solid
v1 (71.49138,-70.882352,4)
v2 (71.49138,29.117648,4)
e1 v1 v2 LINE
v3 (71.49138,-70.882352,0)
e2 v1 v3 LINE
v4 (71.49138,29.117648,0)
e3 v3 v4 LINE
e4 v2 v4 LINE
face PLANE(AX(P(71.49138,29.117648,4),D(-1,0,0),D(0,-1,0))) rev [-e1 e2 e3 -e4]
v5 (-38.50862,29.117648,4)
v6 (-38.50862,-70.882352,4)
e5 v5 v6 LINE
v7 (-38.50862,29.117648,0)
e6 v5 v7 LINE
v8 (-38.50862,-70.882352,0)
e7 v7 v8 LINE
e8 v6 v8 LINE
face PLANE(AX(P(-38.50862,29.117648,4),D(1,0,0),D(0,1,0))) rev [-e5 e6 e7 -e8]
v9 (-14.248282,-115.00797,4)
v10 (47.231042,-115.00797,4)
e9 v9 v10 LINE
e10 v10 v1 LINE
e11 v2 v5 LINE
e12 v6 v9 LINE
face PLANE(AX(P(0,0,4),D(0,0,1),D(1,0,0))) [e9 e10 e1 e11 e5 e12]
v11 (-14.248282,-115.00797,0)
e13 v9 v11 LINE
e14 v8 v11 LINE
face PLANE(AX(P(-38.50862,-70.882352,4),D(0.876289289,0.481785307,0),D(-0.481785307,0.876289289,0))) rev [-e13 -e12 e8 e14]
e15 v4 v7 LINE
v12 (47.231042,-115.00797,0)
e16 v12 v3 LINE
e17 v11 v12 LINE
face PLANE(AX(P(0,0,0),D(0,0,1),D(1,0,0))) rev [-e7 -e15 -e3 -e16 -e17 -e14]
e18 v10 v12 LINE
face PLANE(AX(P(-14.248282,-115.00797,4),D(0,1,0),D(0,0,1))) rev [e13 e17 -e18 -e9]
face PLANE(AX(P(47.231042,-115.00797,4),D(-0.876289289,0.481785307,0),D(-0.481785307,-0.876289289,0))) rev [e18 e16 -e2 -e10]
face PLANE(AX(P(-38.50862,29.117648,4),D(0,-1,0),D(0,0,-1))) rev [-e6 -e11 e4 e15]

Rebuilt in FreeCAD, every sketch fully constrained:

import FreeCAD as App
import Part
import Sketcher

doc = App.newDocument("Part")
body = doc.addObject("PartDesign::Body", "Body")

# Sketch on XY plane
sketch1 = doc.addObject("Sketcher::SketchObject", "Sketch")
body.addObject(sketch1)
sketch1.AttachmentSupport = (doc.XY_Plane, [""])
sketch1.MapMode = "FlatFace"
sketch1.addGeometry([
    Part.LineSegment(App.Vector(71.49138, 29.117648, 0), App.Vector(-38.50862, 29.117648, 0)),  # 0
    Part.LineSegment(App.Vector(-38.50862, 29.117648, 0), App.Vector(-38.50862, -70.882352, 0)),  # 1
    Part.LineSegment(App.Vector(-38.50862, -70.882352, 0), App.Vector(-14.248282, -115.00797, 0)),  # 2
    Part.LineSegment(App.Vector(-14.248282, -115.00797, 0), App.Vector(47.231042, -115.00797, 0)),  # 3
    Part.LineSegment(App.Vector(47.231042, -115.00797, 0), App.Vector(71.49138, -70.882352, 0)),  # 4
    Part.LineSegment(App.Vector(71.49138, -70.882352, 0), App.Vector(71.49138, 29.117648, 0)),  # 5
], False)
sketch1.addConstraint([
    Sketcher.Constraint("Coincident", 0, 2, 1, 1),
    Sketcher.Constraint("Coincident", 1, 2, 2, 1),
    Sketcher.Constraint("Coincident", 2, 2, 3, 1),
    Sketcher.Constraint("Coincident", 3, 2, 4, 1),
    Sketcher.Constraint("Coincident", 4, 2, 5, 1),
    Sketcher.Constraint("Coincident", 5, 2, 0, 1),
    Sketcher.Constraint("Horizontal", 0),
    Sketcher.Constraint("Vertical", 1),
    Sketcher.Constraint("Horizontal", 3),
    Sketcher.Constraint("Vertical", 5),
    Sketcher.Constraint("Horizontal", 1, 2, 4, 2),
    Sketcher.Constraint("Equal", 2, 4),
    Sketcher.Constraint("DistanceX", 0, 2, 0, 1, 110.0),
    Sketcher.Constraint("DistanceY", 1, 2, 1, 1, 100.0),
    Sketcher.Constraint("Distance", 2, 50.35508),
    Sketcher.Constraint("DistanceX", 3, 1, 3, 2, 61.479324),
    Sketcher.Constraint("DistanceX", 0, 2, -1, 1, 38.50862),
    Sketcher.Constraint("DistanceY", 2, 2, -1, 1, 115.00797),
])
pad1 = doc.addObject("PartDesign::Pad", "Pad")
body.addObject(pad1)
pad1.Profile = sketch1
pad1.Length = 4

doc.recompute()
